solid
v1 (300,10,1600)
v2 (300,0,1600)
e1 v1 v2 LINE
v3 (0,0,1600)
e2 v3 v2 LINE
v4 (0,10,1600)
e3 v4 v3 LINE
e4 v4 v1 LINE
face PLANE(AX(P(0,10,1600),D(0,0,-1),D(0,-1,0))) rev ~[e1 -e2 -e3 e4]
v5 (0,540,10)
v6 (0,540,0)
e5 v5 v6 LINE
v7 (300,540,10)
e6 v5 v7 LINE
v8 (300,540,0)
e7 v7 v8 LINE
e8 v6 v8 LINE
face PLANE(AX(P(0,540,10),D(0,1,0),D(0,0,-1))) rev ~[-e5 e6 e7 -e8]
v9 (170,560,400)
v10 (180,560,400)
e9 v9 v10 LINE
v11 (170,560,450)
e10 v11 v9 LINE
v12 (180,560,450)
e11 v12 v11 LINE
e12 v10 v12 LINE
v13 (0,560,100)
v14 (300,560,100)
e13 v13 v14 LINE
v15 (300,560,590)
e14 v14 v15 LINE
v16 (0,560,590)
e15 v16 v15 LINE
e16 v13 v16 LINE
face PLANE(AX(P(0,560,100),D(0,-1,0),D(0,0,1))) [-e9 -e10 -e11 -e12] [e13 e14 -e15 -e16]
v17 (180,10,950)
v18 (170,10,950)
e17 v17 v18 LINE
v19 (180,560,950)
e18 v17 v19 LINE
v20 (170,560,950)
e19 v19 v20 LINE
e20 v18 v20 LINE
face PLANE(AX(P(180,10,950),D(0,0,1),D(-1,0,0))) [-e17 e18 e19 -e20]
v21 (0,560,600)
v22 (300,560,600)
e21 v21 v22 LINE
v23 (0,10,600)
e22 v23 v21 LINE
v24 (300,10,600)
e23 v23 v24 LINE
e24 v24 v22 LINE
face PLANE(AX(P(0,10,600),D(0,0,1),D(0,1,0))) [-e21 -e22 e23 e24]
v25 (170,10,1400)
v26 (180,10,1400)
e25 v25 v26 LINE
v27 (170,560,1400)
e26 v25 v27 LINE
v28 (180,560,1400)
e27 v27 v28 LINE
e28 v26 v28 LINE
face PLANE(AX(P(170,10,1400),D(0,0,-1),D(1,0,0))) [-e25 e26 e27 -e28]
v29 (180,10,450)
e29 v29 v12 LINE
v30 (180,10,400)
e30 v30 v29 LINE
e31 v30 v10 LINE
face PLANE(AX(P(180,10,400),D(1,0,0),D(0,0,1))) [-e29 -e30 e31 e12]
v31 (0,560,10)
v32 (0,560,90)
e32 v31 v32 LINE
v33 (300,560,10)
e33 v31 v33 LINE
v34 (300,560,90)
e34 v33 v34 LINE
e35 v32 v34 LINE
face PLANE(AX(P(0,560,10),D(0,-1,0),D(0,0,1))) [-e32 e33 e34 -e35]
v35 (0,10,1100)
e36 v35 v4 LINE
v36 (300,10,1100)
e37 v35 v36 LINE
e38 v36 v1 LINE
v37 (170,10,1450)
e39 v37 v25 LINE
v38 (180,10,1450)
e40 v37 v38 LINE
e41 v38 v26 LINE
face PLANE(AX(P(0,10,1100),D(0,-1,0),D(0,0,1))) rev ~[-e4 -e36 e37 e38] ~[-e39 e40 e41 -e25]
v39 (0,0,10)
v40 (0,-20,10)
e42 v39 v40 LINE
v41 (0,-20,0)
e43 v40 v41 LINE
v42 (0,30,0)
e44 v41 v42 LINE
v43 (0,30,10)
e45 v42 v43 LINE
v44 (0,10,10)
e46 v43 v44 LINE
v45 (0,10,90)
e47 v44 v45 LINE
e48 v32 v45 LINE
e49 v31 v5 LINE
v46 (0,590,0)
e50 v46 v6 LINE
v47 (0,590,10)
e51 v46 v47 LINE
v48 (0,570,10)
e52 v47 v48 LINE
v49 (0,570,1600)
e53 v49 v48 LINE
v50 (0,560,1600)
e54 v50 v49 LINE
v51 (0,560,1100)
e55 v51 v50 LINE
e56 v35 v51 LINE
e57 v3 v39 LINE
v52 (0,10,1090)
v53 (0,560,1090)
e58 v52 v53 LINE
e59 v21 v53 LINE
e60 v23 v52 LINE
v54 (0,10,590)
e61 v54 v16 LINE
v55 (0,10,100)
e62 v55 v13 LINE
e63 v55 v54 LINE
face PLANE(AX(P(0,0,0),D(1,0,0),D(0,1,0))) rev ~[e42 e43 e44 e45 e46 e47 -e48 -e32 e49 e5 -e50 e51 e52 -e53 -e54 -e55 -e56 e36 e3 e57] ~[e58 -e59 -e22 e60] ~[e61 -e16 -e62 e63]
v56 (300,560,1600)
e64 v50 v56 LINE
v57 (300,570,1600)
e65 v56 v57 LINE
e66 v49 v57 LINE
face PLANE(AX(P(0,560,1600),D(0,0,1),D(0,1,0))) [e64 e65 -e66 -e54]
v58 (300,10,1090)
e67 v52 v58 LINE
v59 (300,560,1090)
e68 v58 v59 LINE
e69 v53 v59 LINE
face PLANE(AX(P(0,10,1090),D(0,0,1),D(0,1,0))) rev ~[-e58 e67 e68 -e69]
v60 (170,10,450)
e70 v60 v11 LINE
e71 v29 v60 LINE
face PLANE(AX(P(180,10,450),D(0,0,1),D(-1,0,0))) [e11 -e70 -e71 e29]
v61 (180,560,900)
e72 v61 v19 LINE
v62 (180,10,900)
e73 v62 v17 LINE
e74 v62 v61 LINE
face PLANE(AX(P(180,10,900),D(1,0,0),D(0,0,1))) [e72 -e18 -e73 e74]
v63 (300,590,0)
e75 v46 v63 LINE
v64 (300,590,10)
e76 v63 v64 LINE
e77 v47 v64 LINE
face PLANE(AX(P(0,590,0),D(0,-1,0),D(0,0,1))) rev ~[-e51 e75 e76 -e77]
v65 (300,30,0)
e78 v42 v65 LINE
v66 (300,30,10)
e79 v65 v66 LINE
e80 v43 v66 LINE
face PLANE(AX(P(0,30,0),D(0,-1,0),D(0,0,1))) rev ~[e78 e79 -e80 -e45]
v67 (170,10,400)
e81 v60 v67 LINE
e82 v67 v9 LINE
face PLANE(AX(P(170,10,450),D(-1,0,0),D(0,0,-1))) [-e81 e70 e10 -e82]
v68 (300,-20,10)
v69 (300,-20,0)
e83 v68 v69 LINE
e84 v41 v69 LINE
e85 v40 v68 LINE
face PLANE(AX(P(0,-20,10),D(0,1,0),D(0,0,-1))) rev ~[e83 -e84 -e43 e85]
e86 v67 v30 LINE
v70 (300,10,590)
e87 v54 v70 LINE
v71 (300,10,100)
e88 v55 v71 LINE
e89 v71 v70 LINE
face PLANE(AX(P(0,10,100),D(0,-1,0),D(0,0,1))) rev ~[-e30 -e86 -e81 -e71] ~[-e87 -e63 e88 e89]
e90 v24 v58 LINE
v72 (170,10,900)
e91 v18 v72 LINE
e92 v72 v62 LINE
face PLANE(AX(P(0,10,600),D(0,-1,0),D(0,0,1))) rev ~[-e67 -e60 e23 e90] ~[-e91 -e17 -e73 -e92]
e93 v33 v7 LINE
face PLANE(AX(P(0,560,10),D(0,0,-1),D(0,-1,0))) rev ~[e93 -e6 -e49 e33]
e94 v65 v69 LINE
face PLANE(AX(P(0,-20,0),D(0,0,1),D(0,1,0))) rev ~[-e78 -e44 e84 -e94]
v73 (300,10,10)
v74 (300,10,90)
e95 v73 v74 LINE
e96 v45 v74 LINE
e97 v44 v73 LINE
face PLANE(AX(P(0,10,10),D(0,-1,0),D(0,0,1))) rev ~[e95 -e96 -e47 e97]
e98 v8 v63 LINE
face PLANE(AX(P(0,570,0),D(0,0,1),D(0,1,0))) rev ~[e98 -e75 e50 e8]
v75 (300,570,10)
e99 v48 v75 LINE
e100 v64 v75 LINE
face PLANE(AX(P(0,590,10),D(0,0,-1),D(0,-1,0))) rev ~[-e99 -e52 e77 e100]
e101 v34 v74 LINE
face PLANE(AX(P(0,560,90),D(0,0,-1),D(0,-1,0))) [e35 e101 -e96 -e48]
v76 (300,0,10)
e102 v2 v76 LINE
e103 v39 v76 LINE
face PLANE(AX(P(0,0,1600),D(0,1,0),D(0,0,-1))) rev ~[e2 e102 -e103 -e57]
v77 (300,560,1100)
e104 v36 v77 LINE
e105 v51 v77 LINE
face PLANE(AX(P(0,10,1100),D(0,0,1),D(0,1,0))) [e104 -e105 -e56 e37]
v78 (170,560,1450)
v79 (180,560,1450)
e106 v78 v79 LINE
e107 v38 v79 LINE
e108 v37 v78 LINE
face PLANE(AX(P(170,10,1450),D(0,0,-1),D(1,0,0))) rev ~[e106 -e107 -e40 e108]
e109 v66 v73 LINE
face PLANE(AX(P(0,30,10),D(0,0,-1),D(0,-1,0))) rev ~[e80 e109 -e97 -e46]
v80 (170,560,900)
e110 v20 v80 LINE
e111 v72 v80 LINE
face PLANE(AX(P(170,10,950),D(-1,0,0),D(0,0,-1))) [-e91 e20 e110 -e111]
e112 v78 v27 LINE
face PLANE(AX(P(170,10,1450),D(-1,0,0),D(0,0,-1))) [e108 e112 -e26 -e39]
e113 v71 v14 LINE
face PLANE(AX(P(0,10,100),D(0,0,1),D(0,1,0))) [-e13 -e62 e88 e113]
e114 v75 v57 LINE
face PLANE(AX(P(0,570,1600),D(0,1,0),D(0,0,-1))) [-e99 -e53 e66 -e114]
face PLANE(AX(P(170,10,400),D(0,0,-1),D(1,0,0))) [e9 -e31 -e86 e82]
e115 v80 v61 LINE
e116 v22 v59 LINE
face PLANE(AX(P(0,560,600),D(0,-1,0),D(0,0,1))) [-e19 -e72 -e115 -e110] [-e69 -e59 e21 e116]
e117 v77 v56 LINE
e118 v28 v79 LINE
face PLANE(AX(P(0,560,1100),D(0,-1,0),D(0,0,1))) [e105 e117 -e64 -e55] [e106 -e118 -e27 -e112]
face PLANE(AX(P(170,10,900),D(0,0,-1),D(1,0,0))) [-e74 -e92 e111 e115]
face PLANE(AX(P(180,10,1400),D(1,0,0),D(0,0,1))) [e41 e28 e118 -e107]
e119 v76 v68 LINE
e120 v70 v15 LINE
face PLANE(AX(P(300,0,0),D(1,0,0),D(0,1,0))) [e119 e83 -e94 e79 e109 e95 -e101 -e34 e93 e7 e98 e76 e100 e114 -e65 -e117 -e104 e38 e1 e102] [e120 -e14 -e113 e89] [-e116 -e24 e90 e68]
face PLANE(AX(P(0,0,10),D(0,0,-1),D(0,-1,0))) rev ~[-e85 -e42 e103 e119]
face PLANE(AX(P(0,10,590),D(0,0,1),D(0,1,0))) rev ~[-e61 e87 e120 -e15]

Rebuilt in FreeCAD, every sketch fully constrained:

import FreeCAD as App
import Part
import Sketcher
from FreeCAD import Vector


def add_polygon(sketch, points):
    """Adds a closed chain of lines whose ends are joined by coincident constraints."""
    first, n = sketch.GeometryCount, len(points)
    for a, b in zip(points, points[1:] + points[:1]):
        sketch.addGeometry(Part.LineSegment(App.Vector(*a, 0), App.Vector(*b, 0)), False)
    for i in range(n):
        sketch.addConstraint(Sketcher.Constraint("Coincident", first + i, 2, first + (i + 1) % n, 1))

doc = App.newDocument("Part")
body = doc.addObject("PartDesign::Body", "Body")

# Sketch on YZ plane
sketch1 = doc.addObject("Sketcher::SketchObject", "Sketch")
body.addObject(sketch1)
sketch1.AttachmentSupport = (doc.YZ_Plane, [""])
sketch1.MapMode = "FlatFace"
add_polygon(sketch1, [(-20, 0), (30, 0), (30, 10), (10, 10), (10, 90), (560, 90), (560, 10), (540, 10), (540, 0), (590, 0), (590, 10), (570, 10), (570, 1600), (560, 1600), (560, 1100), (10, 1100), (10, 1600), (0, 1600), (0, 10), (-20, 10)])  # lines 0-19
add_polygon(sketch1, [(560, 100), (10, 100), (10, 590), (560, 590)])  # lines 20-23
add_polygon(sketch1, [(560, 600), (10, 600), (10, 1090), (560, 1090)])  # lines 24-27
sketch1.addConstraint(Sketcher.Constraint("Horizontal", 0))
sketch1.addConstraint(Sketcher.Constraint("Vertical", 1))
sketch1.addConstraint(Sketcher.Constraint("Horizontal", 2))
sketch1.addConstraint(Sketcher.Constraint("Vertical", 3))
sketch1.addConstraint(Sketcher.Constraint("Horizontal", 4))
sketch1.addConstraint(Sketcher.Constraint("Vertical", 5))
sketch1.addConstraint(Sketcher.Constraint("Horizontal", 6))
sketch1.addConstraint(Sketcher.Constraint("Vertical", 7))
sketch1.addConstraint(Sketcher.Constraint("Horizontal", 8))
sketch1.addConstraint(Sketcher.Constraint("Vertical", 9))
sketch1.addConstraint(Sketcher.Constraint("Horizontal", 10))
sketch1.addConstraint(Sketcher.Constraint("Vertical", 11))
sketch1.addConstraint(Sketcher.Constraint("Horizontal", 12))
sketch1.addConstraint(Sketcher.Constraint("Vertical", 13))
sketch1.addConstraint(Sketcher.Constraint("Horizontal", 14))
sketch1.addConstraint(Sketcher.Constraint("Vertical", 15))
sketch1.addConstraint(Sketcher.Constraint("Horizontal", 16))
sketch1.addConstraint(Sketcher.Constraint("Vertical", 17))
sketch1.addConstraint(Sketcher.Constraint("Horizontal", 18))
sketch1.addConstraint(Sketcher.Constraint("Vertical", 19))
sketch1.addConstraint(Sketcher.Constraint("Horizontal", 20))
sketch1.addConstraint(Sketcher.Constraint("Vertical", 21))
sketch1.addConstraint(Sketcher.Constraint("Horizontal", 22))
sketch1.addConstraint(Sketcher.Constraint("Vertical", 23))
sketch1.addConstraint(Sketcher.Constraint("Horizontal", 24))
sketch1.addConstraint(Sketcher.Constraint("Vertical", 25))
sketch1.addConstraint(Sketcher.Constraint("Horizontal", 26))
sketch1.addConstraint(Sketcher.Constraint("Vertical", 27))
sketch1.addConstraint(Sketcher.Constraint("PointOnObject", 0, 2, -1))
sketch1.addConstraint(Sketcher.Constraint("PointOnObject", 7, 2, -1))
sketch1.addConstraint(Sketcher.Constraint("PointOnObject", 16, 2, -2))
sketch1.addConstraint(Sketcher.Constraint("Horizontal", 2, 2, 5, 2))
sketch1.addConstraint(Sketcher.Constraint("Horizontal", 6, 2, 9, 2))
sketch1.addConstraint(Sketcher.Constraint("Horizontal", 12, 2, 15, 2))
sketch1.addConstraint(Sketcher.Constraint("Horizontal", 10, 2, 17, 2))
sketch1.addConstraint(Sketcher.Constraint("Vertical", 5, 2, 12, 2))
sketch1.addConstraint(Sketcher.Constraint("Vertical", 3, 2, 14, 2))
sketch1.addConstraint(Sketcher.Constraint("Vertical", 15, 2, 20, 2))
sketch1.addConstraint(Sketcher.Constraint("Vertical", 13, 2, 22, 2))
sketch1.addConstraint(Sketcher.Constraint("Vertical", 21, 2, 24, 2))
sketch1.addConstraint(Sketcher.Constraint("Vertical", 23, 2, 26, 2))
sketch1.addConstraint(Sketcher.Constraint("Equal", 2, 6))
sketch1.addConstraint(Sketcher.Constraint("Equal", 0, 8))
sketch1.addConstraint(Sketcher.Constraint("Equal", 6, 10))
sketch1.addConstraint(Sketcher.Constraint("Equal", 12, 16))
sketch1.addConstraint(Sketcher.Constraint("Equal", 16, 1))
sketch1.addConstraint(Sketcher.Constraint("Equal", 23, 25))
sketch1.addConstraint(Sketcher.Constraint("DistanceX", 0, 1, 0, 2, 50.0))
sketch1.addConstraint(Sketcher.Constraint("DistanceX", 12, 2, 12, 1, 10.0))
sketch1.addConstraint(Sketcher.Constraint("DistanceX", -1, 1, 4, 2, 560.0))
sketch1.addConstraint(Sketcher.Constraint("DistanceY", -1, 1, 11, 2, 1600.0))
sketch1.addConstraint(Sketcher.Constraint("DistanceY", 3, 2, 20, 2, 10.0))
sketch1.addConstraint(Sketcher.Constraint("DistanceY", 21, 2, 24, 2, 10.0))
sketch1.addConstraint(Sketcher.Constraint("DistanceY", 25, 2, 14, 2, 10.0))
sketch1.addConstraint(Sketcher.Constraint("DistanceY", 3, 1, 3, 2, 80.0))
sketch1.addConstraint(Sketcher.Constraint("DistanceY", 13, 2, 13, 1, 500.0))
pad1 = doc.addObject("PartDesign::Pad", "Pad")
body.addObject(pad1)
pad1.Profile = sketch1
pad1.Length = 300

# Sketch on XZ plane
sketch2 = doc.addObject("Sketcher::SketchObject", "Sketch001")
body.addObject(sketch2)
sketch2.AttachmentSupport = (doc.XZ_Plane, [""])
sketch2.MapMode = "FlatFace"
sketch2.AttachmentOffset = App.Placement(Vector(0, 0, -10), App.Rotation())
add_polygon(sketch2, [(170, 1400), (170, 1450), (180, 1450), (180, 1400)])  # lines 0-3
add_polygon(sketch2, [(170, 900), (170, 950), (180, 950), (180, 900)])  # lines 4-7
add_polygon(sketch2, [(180, 450), (180, 400), (170, 400), (170, 450)])  # lines 8-11
sketch2.addConstraint(Sketcher.Constraint("Vertical", 0))
sketch2.addConstraint(Sketcher.Constraint("Horizontal", 1))
sketch2.addConstraint(Sketcher.Constraint("Vertical", 2))
sketch2.addConstraint(Sketcher.Constraint("Horizontal", 3))
sketch2.addConstraint(Sketcher.Constraint("Vertical", 4))
sketch2.addConstraint(Sketcher.Constraint("Horizontal", 5))
sketch2.addConstraint(Sketcher.Constraint("Vertical", 6))
sketch2.addConstraint(Sketcher.Constraint("Horizontal", 7))
sketch2.addConstraint(Sketcher.Constraint("Vertical", 8))
sketch2.addConstraint(Sketcher.Constraint("Horizontal", 9))
sketch2.addConstraint(Sketcher.Constraint("Vertical", 10))
sketch2.addConstraint(Sketcher.Constraint("Horizontal", 11))
sketch2.addConstraint(Sketcher.Constraint("Vertical", 3, 2, 4, 2))
sketch2.addConstraint(Sketcher.Constraint("Vertical", 2, 2, 5, 2))
sketch2.addConstraint(Sketcher.Constraint("Vertical", 6, 2, 8, 2))
sketch2.addConstraint(Sketcher.Constraint("Vertical", 7, 2, 9, 2))
sketch2.addConstraint(Sketcher.Constraint("Equal", 2, 4))
sketch2.addConstraint(Sketcher.Constraint("Equal", 6, 8))
sketch2.addConstraint(Sketcher.Constraint("DistanceX", 1, 1, 1, 2, 10.0))
sketch2.addConstraint(Sketcher.Constraint("DistanceY", 0, 1, 0, 2, 50.0))
sketch2.addConstraint(Sketcher.Constraint("DistanceX", -1, 1, 1, 2, 180.0))
sketch2.addConstraint(Sketcher.Constraint("DistanceY", -1, 1, 8, 2, 400.0))
sketch2.addConstraint(Sketcher.Constraint("DistanceY", -1, 1, 0, 2, 1450.0))
sketch2.addConstraint(Sketcher.Constraint("DistanceY", -1, 1, 4, 2, 950.0))
pad2 = doc.addObject("PartDesign::Pad", "Pad001")
body.addObject(pad2)
pad2.Profile = sketch2
pad2.Length = 550
pad2.Reversed = True

doc.recompute()
